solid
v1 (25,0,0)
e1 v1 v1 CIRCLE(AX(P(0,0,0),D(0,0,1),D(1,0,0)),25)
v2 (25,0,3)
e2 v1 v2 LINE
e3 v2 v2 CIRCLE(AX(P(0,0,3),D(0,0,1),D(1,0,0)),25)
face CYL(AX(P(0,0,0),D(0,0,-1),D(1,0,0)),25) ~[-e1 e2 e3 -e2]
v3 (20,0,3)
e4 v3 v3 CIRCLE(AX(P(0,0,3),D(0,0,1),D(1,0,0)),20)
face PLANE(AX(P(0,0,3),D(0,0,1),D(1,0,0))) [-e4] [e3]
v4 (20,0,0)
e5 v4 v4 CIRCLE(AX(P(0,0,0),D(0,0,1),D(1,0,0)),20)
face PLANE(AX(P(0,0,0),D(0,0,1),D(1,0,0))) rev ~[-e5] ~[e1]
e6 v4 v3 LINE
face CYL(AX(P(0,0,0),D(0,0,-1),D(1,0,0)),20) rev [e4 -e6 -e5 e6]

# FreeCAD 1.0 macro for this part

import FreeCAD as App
import Part
import Sketcher

V = App.Vector
Q = App.Units.Quantity

doc = App.newDocument("Part")
body = doc.addObject("PartDesign::Body", "Body")

# Sketch on XY plane
sketch1 = doc.addObject("Sketcher::SketchObject", "Sketch")
body.addObject(sketch1)
sketch1.AttachmentSupport = (doc.XY_Plane, [""])
sketch1.MapMode = "FlatFace"
sketch1.addGeometry([
    Part.Circle(V(0, 0, 0), V(0, 0, 1), 25),
    Part.Circle(V(0, 0, 0), V(0, 0, 1), 20),
], False)
sketch1.addConstraint([
    Sketcher.Constraint("Coincident", 0, 3, -1, 1),
    Sketcher.Constraint("Coincident", 1, 3, -1, 1),
    Sketcher.Constraint("Diameter", 0, Q("50 mm")),
    Sketcher.Constraint("Diameter", 1, Q("40 mm")),
])
pad1 = doc.addObject("PartDesign::Pad", "Pad")
body.addObject(pad1)
pad1.Profile = sketch1
pad1.Length = 3

doc.recompute()
